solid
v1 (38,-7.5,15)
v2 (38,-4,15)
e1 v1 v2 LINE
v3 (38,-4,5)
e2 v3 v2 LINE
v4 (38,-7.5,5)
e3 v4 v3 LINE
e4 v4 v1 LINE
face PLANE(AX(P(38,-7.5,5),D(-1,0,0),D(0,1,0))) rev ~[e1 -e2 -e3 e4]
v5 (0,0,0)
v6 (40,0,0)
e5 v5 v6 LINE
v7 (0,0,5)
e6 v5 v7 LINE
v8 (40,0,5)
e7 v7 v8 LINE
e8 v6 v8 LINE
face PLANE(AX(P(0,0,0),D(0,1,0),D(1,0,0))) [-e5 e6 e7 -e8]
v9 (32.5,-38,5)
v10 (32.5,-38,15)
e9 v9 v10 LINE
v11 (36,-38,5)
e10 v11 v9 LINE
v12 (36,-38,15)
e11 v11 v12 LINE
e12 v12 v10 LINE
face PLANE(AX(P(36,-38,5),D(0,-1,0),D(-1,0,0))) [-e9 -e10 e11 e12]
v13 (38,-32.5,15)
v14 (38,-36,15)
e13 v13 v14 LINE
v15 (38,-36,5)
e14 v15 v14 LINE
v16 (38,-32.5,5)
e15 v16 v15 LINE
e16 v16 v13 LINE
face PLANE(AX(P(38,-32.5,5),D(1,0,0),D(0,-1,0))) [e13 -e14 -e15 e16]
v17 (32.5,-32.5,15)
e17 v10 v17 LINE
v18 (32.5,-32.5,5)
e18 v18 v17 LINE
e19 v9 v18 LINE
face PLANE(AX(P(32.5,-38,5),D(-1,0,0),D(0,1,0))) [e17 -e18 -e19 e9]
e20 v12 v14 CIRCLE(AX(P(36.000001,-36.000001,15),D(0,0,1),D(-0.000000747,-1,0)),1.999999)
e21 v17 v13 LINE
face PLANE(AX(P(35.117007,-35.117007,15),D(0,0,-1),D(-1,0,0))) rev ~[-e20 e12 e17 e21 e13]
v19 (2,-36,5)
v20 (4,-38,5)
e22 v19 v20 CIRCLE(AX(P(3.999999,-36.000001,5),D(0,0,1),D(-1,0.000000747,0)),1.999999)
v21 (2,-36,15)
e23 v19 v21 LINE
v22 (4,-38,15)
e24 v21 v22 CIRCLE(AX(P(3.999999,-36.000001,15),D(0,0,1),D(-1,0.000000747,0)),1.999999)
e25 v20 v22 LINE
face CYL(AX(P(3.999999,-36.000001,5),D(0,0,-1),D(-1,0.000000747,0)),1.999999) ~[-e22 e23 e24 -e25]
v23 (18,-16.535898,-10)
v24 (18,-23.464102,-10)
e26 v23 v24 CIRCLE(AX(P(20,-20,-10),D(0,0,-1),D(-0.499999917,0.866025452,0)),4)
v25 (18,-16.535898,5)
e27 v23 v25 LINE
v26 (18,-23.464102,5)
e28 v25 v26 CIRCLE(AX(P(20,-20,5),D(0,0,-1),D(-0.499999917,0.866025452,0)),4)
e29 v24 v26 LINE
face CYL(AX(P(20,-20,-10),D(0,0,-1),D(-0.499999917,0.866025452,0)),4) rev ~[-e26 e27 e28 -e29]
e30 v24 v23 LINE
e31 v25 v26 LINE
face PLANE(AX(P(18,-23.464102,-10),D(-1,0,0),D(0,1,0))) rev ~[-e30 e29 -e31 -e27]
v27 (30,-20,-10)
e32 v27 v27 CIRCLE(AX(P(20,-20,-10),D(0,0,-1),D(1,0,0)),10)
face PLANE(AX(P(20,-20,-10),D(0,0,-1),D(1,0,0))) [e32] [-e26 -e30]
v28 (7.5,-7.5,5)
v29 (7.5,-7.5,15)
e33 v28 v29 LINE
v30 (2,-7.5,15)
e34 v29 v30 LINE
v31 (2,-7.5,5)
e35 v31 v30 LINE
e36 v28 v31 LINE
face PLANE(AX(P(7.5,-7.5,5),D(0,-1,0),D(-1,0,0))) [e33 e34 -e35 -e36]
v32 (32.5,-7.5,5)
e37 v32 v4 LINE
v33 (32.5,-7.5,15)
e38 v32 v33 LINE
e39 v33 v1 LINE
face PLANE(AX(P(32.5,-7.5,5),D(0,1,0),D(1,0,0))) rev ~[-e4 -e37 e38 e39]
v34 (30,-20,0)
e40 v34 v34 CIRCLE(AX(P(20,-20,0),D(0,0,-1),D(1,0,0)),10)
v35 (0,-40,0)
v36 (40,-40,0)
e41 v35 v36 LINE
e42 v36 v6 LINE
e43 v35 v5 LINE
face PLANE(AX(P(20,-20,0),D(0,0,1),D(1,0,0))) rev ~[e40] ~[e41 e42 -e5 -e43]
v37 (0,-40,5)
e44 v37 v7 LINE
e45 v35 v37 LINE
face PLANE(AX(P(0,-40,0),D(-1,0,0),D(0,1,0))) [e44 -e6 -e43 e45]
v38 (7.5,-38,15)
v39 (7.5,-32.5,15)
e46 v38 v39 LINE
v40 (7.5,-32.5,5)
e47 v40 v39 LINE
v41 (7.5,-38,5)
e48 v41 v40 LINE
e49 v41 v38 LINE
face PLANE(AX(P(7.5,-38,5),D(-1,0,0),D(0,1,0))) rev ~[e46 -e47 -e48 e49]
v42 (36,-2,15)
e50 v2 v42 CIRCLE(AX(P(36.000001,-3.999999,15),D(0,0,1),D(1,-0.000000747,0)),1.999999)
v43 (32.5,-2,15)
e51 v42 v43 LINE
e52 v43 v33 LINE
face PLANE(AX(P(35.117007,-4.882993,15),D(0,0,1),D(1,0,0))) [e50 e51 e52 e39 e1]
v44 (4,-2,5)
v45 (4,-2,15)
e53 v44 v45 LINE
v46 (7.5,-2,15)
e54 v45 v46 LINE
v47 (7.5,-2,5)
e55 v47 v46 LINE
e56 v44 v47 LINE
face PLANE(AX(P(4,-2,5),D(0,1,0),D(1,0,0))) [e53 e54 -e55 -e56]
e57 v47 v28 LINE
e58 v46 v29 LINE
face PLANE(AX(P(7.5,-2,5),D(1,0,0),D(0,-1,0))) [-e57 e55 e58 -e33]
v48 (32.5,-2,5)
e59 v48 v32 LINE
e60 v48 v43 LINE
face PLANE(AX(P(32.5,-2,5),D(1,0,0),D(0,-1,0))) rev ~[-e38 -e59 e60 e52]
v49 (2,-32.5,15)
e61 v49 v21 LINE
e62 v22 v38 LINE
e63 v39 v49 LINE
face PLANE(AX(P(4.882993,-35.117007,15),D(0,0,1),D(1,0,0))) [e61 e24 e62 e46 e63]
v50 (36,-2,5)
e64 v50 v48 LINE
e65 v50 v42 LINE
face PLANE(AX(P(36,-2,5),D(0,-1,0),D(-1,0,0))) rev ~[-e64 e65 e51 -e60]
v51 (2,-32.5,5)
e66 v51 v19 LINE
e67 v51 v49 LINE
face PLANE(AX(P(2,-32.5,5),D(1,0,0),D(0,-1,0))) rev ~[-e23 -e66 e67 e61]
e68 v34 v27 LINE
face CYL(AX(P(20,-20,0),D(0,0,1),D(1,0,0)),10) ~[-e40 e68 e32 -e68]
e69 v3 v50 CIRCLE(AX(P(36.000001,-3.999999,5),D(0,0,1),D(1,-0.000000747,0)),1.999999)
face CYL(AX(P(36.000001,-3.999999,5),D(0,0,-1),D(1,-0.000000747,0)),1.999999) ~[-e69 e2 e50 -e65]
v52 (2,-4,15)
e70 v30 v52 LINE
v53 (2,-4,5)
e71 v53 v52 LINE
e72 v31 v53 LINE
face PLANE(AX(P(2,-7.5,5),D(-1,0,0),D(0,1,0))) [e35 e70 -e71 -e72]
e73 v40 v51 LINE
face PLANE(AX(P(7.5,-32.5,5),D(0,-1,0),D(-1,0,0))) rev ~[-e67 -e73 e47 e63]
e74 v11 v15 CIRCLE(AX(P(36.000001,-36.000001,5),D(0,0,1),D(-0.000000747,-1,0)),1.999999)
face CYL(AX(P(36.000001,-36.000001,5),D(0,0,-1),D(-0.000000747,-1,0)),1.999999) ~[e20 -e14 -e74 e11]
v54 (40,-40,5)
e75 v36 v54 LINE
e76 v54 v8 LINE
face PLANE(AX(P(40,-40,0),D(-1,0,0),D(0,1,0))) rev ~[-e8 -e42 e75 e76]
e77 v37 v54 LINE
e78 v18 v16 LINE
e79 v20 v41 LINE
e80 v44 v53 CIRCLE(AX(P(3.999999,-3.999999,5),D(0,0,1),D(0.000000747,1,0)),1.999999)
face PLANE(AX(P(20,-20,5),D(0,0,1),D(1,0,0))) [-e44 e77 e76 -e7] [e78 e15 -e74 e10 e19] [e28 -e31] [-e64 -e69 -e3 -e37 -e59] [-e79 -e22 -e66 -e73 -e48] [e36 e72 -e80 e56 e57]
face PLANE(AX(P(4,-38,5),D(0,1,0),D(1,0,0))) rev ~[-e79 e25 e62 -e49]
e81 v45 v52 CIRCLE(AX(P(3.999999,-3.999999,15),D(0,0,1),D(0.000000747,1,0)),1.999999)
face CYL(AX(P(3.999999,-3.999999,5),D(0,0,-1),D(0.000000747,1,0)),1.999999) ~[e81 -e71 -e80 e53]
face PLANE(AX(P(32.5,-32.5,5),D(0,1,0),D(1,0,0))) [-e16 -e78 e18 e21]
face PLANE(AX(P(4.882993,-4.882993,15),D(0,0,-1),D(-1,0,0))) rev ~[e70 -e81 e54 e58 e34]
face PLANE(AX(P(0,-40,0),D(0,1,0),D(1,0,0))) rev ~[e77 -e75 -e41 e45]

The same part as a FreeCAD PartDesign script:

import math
import FreeCAD as App
import Part
import Sketcher
from FreeCAD import Vector
Q = App.Units.Quantity

doc = App.newDocument("Part")
body = doc.addObject("PartDesign::Body", "Body")

sketch1 = body.newObject("Sketcher::SketchObject", "Sketch")
sketch1.AttachmentSupport = (doc.getObject("XY_Plane"), [""])
sketch1.MapMode = "FlatFace"
sketch1.AttachmentOffset = App.Placement(Vector(0, 0, -10), App.Rotation())
sketch1.addGeometry(Part.ArcOfCircle(Part.Circle(Vector(20, -20, 0), Vector(0, 0, 1), 4), math.radians(-119.999994), math.radians(119.999994)), False)
sketch1.addGeometry(Part.LineSegment(Vector(18, -23.464102, 0), Vector(18, -16.535898, 0)), False)
sketch1.addConstraint(Sketcher.Constraint("Coincident", 0, 1, 1, 1))
sketch1.addConstraint(Sketcher.Constraint("Coincident", 1, 2, 0, 2))
sketch1.addConstraint(Sketcher.Constraint("Vertical", 1))
sketch1.addConstraint(Sketcher.Constraint("Radius", 0, Q("4 mm")))
sketch1.addConstraint(Sketcher.Constraint("DistanceX", -1, 1, 0, 3, Q("20 mm")))
sketch1.addConstraint(Sketcher.Constraint("DistanceY", 0, 3, -1, 1, Q("20 mm")))
sketch1.addConstraint(Sketcher.Constraint("DistanceX", -1, 1, 0, 1, Q("18 mm")))
pad1 = body.newObject("PartDesign::Pad", "Pad")
pad1.Profile = sketch1
pad1.Length = 20
body2 = doc.addObject("PartDesign::Body", "Body001")

sketch2 = body2.newObject("Sketcher::SketchObject", "Sketch001")
sketch2.AttachmentSupport = (doc.getObject("XY_Plane001"), [""])
sketch2.MapMode = "FlatFace"
sketch2.addGeometry(Part.Circle(Vector(20, -20, 0), Vector(0, 0, 1), 10), False)
sketch2.addConstraint(Sketcher.Constraint("Diameter", 0, Q("20 mm")))
sketch2.addConstraint(Sketcher.Constraint("DistanceX", -1, 1, 0, 3, Q("20 mm")))
sketch2.addConstraint(Sketcher.Constraint("DistanceY", 0, 3, -1, 1, Q("20 mm")))
pad2 = body2.newObject("PartDesign::Pad", "Pad001")
pad2.Profile = sketch2
pad2.Length = 10
pad2.Reversed = True
body3 = doc.addObject("PartDesign::Body", "Body002")

sketch3 = body3.newObject("Sketcher::SketchObject", "Sketch002")
sketch3.AttachmentSupport = (doc.getObject("XY_Plane002"), [""])
sketch3.MapMode = "FlatFace"
sketch3.addGeometry(Part.LineSegment(Vector(0, 0, 0), Vector(0, -40, 0)), False)
sketch3.addGeometry(Part.LineSegment(Vector(0, -40, 0), Vector(40, -40, 0)), False)
sketch3.addGeometry(Part.LineSegment(Vector(40, -40, 0), Vector(40, 0, 0)), False)
sketch3.addGeometry(Part.LineSegment(Vector(40, 0, 0), Vector(0, 0, 0)), False)
sketch3.addConstraint(Sketcher.Constraint("Coincident", 0, 2, 1, 1))
sketch3.addConstraint(Sketcher.Constraint("Coincident", 1, 2, 2, 1))
sketch3.addConstraint(Sketcher.Constraint("Coincident", 2, 2, 3, 1))
sketch3.addConstraint(Sketcher.Constraint("Coincident", 3, 2, 0, 1))
sketch3.addConstraint(Sketcher.Constraint("Vertical", 0))
sketch3.addConstraint(Sketcher.Constraint("Horizontal", 1))
sketch3.addConstraint(Sketcher.Constraint("Vertical", 2))
sketch3.addConstraint(Sketcher.Constraint("Horizontal", 3))
sketch3.addConstraint(Sketcher.Constraint("Coincident", 3, 2, -1, 1))
sketch3.addConstraint(Sketcher.Constraint("Equal", 3, 0))
sketch3.addConstraint(Sketcher.Constraint("DistanceX", 1, 1, 1, 2, Q("40 mm")))
pad3 = body3.newObject("PartDesign::Pad", "Pad002")
pad3.Profile = sketch3
pad3.Length = 5

sketch4 = body3.newObject("Sketcher::SketchObject", "Sketch003")
sketch4.AttachmentSupport = (doc.getObject("XY_Plane002"), [""])
sketch4.MapMode = "FlatFace"
sketch4.AttachmentOffset = App.Placement(Vector(0, 0, 5), App.Rotation())
sketch4.addGeometry(Part.LineSegment(Vector(7.5, -2, 0), Vector(4, -2, 0)), False)
sketch4.addGeometry(Part.ArcOfCircle(Part.Circle(Vector(3.999999, -3.999999, 0), Vector(0, 0, 1), 1.999999), math.radians(89.999957), math.radians(180.000043)), False)
sketch4.addGeometry(Part.LineSegment(Vector(2, -4, 0), Vector(2, -7.5, 0)), False)
sketch4.addGeometry(Part.LineSegment(Vector(2, -7.5, 0), Vector(7.5, -7.5, 0)), False)
sketch4.addGeometry(Part.LineSegment(Vector(7.5, -7.5, 0), Vector(7.5, -2, 0)), False)
sketch4.addGeometry(Part.LineSegment(Vector(38, -7.5, 0), Vector(38, -4, 0)), False)
sketch4.addGeometry(Part.ArcOfCircle(Part.Circle(Vector(36.000001, -3.999999, 0), Vector(0, 0, 1), 1.999999), math.radians(-0.000043), math.radians(90.000043)), False)
sketch4.addGeometry(Part.LineSegment(Vector(36, -2, 0), Vector(32.5, -2, 0)), False)
sketch4.addGeometry(Part.LineSegment(Vector(32.5, -2, 0), Vector(32.5, -7.5, 0)), False)
sketch4.addGeometry(Part.LineSegment(Vector(32.5, -7.5, 0), Vector(38, -7.5, 0)), False)
sketch4.addGeometry(Part.LineSegment(Vector(7.5, -32.5, 0), Vector(2, -32.5, 0)), False)
sketch4.addGeometry(Part.LineSegment(Vector(2, -32.5, 0), Vector(2, -36, 0)), False)
sketch4.addGeometry(Part.ArcOfCircle(Part.Circle(Vector(3.999999, -36.000001, 0), Vector(0, 0, 1), 1.999999), math.radians(179.999957), math.radians(270.000043)), False)
sketch4.addGeometry(Part.LineSegment(Vector(4, -38, 0), Vector(7.5, -38, 0)), False)
sketch4.addGeometry(Part.LineSegment(Vector(7.5, -38, 0), Vector(7.5, -32.5, 0)), False)
sketch4.addGeometry(Part.LineSegment(Vector(32.5, -32.5, 0), Vector(32.5, -38, 0)), False)
sketch4.addGeometry(Part.LineSegment(Vector(32.5, -38, 0), Vector(36, -38, 0)), False)
sketch4.addGeometry(Part.ArcOfCircle(Part.Circle(Vector(36.000001, -36.000001, 0), Vector(0, 0, 1), 1.999999), math.radians(-90.000043), math.radians(0.000043)), False)
sketch4.addGeometry(Part.LineSegment(Vector(38, -36, 0), Vector(38, -32.5, 0)), False)
sketch4.addGeometry(Part.LineSegment(Vector(38, -32.5, 0), Vector(32.5, -32.5, 0)), False)
sketch4.addConstraint(Sketcher.Constraint("Tangent", 0, 2, 1, 1))
sketch4.addConstraint(Sketcher.Constraint("Tangent", 1, 2, 2, 1))
sketch4.addConstraint(Sketcher.Constraint("Coincident", 2, 2, 3, 1))
sketch4.addConstraint(Sketcher.Constraint("Coincident", 3, 2, 4, 1))
sketch4.addConstraint(Sketcher.Constraint("Coincident", 4, 2, 0, 1))
sketch4.addConstraint(Sketcher.Constraint("Tangent", 5, 2, 6, 1))
sketch4.addConstraint(Sketcher.Constraint("Tangent", 6, 2, 7, 1))
sketch4.addConstraint(Sketcher.Constraint("Coincident", 7, 2, 8, 1))
sketch4.addConstraint(Sketcher.Constraint("Coincident", 8, 2, 9, 1))
sketch4.addConstraint(Sketcher.Constraint("Coincident", 9, 2, 5, 1))
sketch4.addConstraint(Sketcher.Constraint("Coincident", 10, 2, 11, 1))
sketch4.addConstraint(Sketcher.Constraint("Tangent", 11, 2, 12, 1))
sketch4.addConstraint(Sketcher.Constraint("Tangent", 12, 2, 13, 1))
sketch4.addConstraint(Sketcher.Constraint("Coincident", 13, 2, 14, 1))
sketch4.addConstraint(Sketcher.Constraint("Coincident", 14, 2, 10, 1))
sketch4.addConstraint(Sketcher.Constraint("Coincident", 15, 2, 16, 1))
sketch4.addConstraint(Sketcher.Constraint("Tangent", 16, 2, 17, 1))
sketch4.addConstraint(Sketcher.Constraint("Tangent", 17, 2, 18, 1))
sketch4.addConstraint(Sketcher.Constraint("Coincident", 18, 2, 19, 1))
sketch4.addConstraint(Sketcher.Constraint("Coincident", 19, 2, 15, 1))
sketch4.addConstraint(Sketcher.Constraint("Horizontal", 0))
sketch4.addConstraint(Sketcher.Constraint("Vertical", 2))
sketch4.addConstraint(Sketcher.Constraint("Horizontal", 3))
sketch4.addConstraint(Sketcher.Constraint("Vertical", 4))
sketch4.addConstraint(Sketcher.Constraint("Vertical", 5))
sketch4.addConstraint(Sketcher.Constraint("Horizontal", 7))
sketch4.addConstraint(Sketcher.Constraint("Vertical", 8))
sketch4.addConstraint(Sketcher.Constraint("Horizontal", 9))
sketch4.addConstraint(Sketcher.Constraint("Horizontal", 10))
sketch4.addConstraint(Sketcher.Constraint("Vertical", 11))
sketch4.addConstraint(Sketcher.Constraint("Horizontal", 13))
sketch4.addConstraint(Sketcher.Constraint("Vertical", 14))
sketch4.addConstraint(Sketcher.Constraint("Vertical", 15))
sketch4.addConstraint(Sketcher.Constraint("Horizontal", 16))
sketch4.addConstraint(Sketcher.Constraint("Vertical", 18))
sketch4.addConstraint(Sketcher.Constraint("Horizontal", 19))
sketch4.addConstraint(Sketcher.Constraint("Equal", 1, 6))
sketch4.addConstraint(Sketcher.Constraint("Equal", 6, 12))
sketch4.addConstraint(Sketcher.Constraint("Equal", 12, 17))
sketch4.addConstraint(Sketcher.Constraint("Horizontal", 1, 3, 6, 3))
sketch4.addConstraint(Sketcher.Constraint("Horizontal", 12, 3, 17, 3))
sketch4.addConstraint(Sketcher.Constraint("Horizontal", 3, 2, 8, 2))
sketch4.addConstraint(Sketcher.Constraint("Horizontal", 14, 2, 18, 2))
sketch4.addConstraint(Sketcher.Constraint("Vertical", 1, 3, 12, 3))
sketch4.addConstraint(Sketcher.Constraint("Vertical", 6, 3, 17, 3))
sketch4.addConstraint(Sketcher.Constraint("Vertical", 4, 2, 13, 2))
sketch4.addConstraint(Sketcher.Constraint("Vertical", 8, 2, 15, 2))
sketch4.addConstraint(Sketcher.Constraint("Equal", 0, 7))
sketch4.addConstraint(Sketcher.Constraint("Equal", 16, 2))
sketch4.addConstraint(Sketcher.Constraint("Equal", 5, 11))
sketch4.addConstraint(Sketcher.Constraint("Radius", 1, Q("1.999999 mm")))
sketch4.addConstraint(Sketcher.Constraint("DistanceX", 0, 2, 0, 1, Q("3.5 mm")))
sketch4.addConstraint(Sketcher.Constraint("DistanceX", -1, 1, 1, 3, Q("3.999999 mm")))
sketch4.addConstraint(Sketcher.Constraint("DistanceY", 1, 3, -1, 1, Q("3.999999 mm")))
sketch4.addConstraint(Sketcher.Constraint("DistanceX", -1, 1, 6, 3, Q("36.000001 mm")))
sketch4.addConstraint(Sketcher.Constraint("DistanceY", 12, 3, -1, 1, Q("36.000001 mm")))
pad4 = body3.newObject("PartDesign::Pad", "Pad003")
pad4.Profile = sketch4
pad4.Length = 10
doc.recompute()

boolean = body3.newObject("PartDesign::Boolean", "Boolean")
boolean.Type = "Fuse"
boolean.addObjects([body2])
doc.recompute()

boolean2 = body3.newObject("PartDesign::Boolean", "Boolean001")
boolean2.Type = "Cut"
boolean2.addObjects([body])

doc.recompute()
